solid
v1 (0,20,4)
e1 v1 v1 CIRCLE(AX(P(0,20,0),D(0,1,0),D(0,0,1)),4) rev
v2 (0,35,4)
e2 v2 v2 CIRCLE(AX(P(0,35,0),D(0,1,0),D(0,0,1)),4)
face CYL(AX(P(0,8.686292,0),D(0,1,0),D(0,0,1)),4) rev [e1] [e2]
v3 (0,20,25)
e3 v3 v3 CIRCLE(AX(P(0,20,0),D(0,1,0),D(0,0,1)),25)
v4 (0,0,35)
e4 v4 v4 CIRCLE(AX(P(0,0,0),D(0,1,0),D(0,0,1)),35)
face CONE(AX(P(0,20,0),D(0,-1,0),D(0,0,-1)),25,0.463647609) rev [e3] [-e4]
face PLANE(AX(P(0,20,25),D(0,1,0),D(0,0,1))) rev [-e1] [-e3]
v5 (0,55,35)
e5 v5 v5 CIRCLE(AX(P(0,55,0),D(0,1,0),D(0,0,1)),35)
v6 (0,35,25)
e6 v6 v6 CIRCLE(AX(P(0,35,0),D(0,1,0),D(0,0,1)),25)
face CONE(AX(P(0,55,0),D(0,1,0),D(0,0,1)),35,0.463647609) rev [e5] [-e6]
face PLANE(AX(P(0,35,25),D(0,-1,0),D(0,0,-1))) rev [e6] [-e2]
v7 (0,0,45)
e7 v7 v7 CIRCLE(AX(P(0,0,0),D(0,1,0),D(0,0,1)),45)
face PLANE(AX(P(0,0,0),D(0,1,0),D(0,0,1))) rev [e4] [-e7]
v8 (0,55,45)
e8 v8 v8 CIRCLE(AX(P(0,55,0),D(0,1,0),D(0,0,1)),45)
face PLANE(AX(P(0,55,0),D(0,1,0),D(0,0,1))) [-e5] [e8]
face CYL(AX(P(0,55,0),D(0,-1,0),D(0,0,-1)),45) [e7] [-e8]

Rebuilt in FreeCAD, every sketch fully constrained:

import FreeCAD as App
import Part
import Sketcher

V = App.Vector
Q = App.Units.Quantity

doc = App.newDocument("Part")
params = doc.addObject("Spreadsheet::Sheet", "Params")
for row, (alias, value) in enumerate([
    ("sketch1_diameter", "90 mm"),
    ("pad1_length", "55 mm"),
    ("sketch2_width", "20 mm"),
    ("sketch2_height", "35 mm"),
    ("sketch2_height2", "25 mm"),
    ("groove_angle", "360 deg"),
    ("sketch3_diameter", "8 mm"),
    ("pocket1_length", "15 mm"),
], start=1):
    params.set(f"A{row}", alias)
    params.set(f"B{row}", "=" + value)
    params.setAlias(f"B{row}", alias)

body = doc.addObject("PartDesign::Body", "Body")

sketch1 = body.newObject("Sketcher::SketchObject", "Sketch")
sketch1.AttachmentSupport = (doc.getObject("XZ_Plane"), [""])
sketch1.MapMode = "FlatFace"
sketch1.addGeometry(Part.Circle(V(0, 0, 0), V(0, 0, 1), 45), False)
sketch1.addConstraint([
    Sketcher.Constraint("Coincident", 0, 3, -1, 1),
    Sketcher.Constraint("Diameter", 0, Q("90 mm")),
])
sketch1.setExpression("Constraints[1]", "Params.sketch1_diameter")
pad1 = body.newObject("PartDesign::Pad", "Pad")
pad1.Profile = sketch1
pad1.setExpression("Length", "Params.pad1_length")
pad1.Reversed = True

sketch2 = body.newObject("Sketcher::SketchObject", "Sketch001")
sketch2.AttachmentSupport = (doc.getObject("YZ_Plane"), [""])
sketch2.MapMode = "FlatFace"
sketch2.addGeometry([
    Part.LineSegment(V(35, 0, 0), V(55, 0, 0)),
    Part.LineSegment(V(55, 0, 0), V(55, 35, 0)),
    Part.LineSegment(V(55, 35, 0), V(35, 25, 0)),
    Part.LineSegment(V(35, 25, 0), V(35, 0, 0)),
    Part.LineSegment(V(0, 0, 0), V(20, 0, 0)),
    Part.LineSegment(V(20, 0, 0), V(20, 25, 0)),
    Part.LineSegment(V(20, 25, 0), V(0, 35, 0)),
    Part.LineSegment(V(0, 35, 0), V(0, 0, 0)),
], False)
sketch2.addConstraint([
    Sketcher.Constraint("Coincident", 0, 2, 1, 1),
    Sketcher.Constraint("Coincident", 1, 2, 2, 1),
    Sketcher.Constraint("Coincident", 2, 2, 3, 1),
    Sketcher.Constraint("Coincident", 3, 2, 0, 1),
    Sketcher.Constraint("Coincident", 4, 2, 5, 1),
    Sketcher.Constraint("Coincident", 5, 2, 6, 1),
    Sketcher.Constraint("Coincident", 6, 2, 7, 1),
    Sketcher.Constraint("Coincident", 7, 2, 4, 1),
    Sketcher.Constraint("Horizontal", 0),
    Sketcher.Constraint("Vertical", 1),
    Sketcher.Constraint("Vertical", 3),
    Sketcher.Constraint("Horizontal", 4),
    Sketcher.Constraint("Vertical", 5),
    Sketcher.Constraint("Vertical", 7),
    Sketcher.Constraint("Coincident", 7, 2, -1, 1),
    Sketcher.Constraint("PointOnObject", 0, 2, -1),
    Sketcher.Constraint("Horizontal", 2, 2, 5, 2),
    Sketcher.Constraint("Horizontal", 1, 2, 6, 2),
    Sketcher.Constraint("Equal", 0, 4),
    Sketcher.Constraint("DistanceX", 0, 1, 0, 2, Q("20 mm")),
    Sketcher.Constraint("DistanceY", 1, 1, 1, 2, Q("35 mm")),
    Sketcher.Constraint("DistanceY", 3, 2, 3, 1, Q("25 mm")),
    Sketcher.Constraint("DistanceX", -1, 1, 0, 2, Q("55 mm")),
])
sketch2.setExpression("Constraints[19]", "Params.sketch2_width")
sketch2.setExpression("Constraints[20]", "Params.sketch2_height")
sketch2.setExpression("Constraints[21]", "Params.sketch2_height2")
groove = body.newObject("PartDesign::Groove", "Groove")
groove.Profile = sketch2
groove.ReferenceAxis = (sketch2, ["H_Axis"])
groove.setExpression("Angle", "Params.groove_angle")

sketch3 = body.newObject("Sketcher::SketchObject", "Sketch002")
sketch3.AttachmentSupport = (doc.getObject("XZ_Plane"), [""])
sketch3.MapMode = "FlatFace"
sketch3.AttachmentOffset = App.Placement(V(0, 0, -35), App.Rotation())
sketch3.addGeometry(Part.Circle(V(0, 0, 0), V(0, 0, 1), 4), False)
sketch3.addConstraint([
    Sketcher.Constraint("Coincident", 0, 3, -1, 1),
    Sketcher.Constraint("Diameter", 0, Q("8 mm")),
])
sketch3.setExpression("Constraints[1]", "Params.sketch3_diameter")
pocket1 = body.newObject("PartDesign::Pocket", "Pocket")
pocket1.Profile = sketch3
pocket1.setExpression("Length", "Params.pocket1_length")
pocket1.Reversed = True

doc.recompute()
